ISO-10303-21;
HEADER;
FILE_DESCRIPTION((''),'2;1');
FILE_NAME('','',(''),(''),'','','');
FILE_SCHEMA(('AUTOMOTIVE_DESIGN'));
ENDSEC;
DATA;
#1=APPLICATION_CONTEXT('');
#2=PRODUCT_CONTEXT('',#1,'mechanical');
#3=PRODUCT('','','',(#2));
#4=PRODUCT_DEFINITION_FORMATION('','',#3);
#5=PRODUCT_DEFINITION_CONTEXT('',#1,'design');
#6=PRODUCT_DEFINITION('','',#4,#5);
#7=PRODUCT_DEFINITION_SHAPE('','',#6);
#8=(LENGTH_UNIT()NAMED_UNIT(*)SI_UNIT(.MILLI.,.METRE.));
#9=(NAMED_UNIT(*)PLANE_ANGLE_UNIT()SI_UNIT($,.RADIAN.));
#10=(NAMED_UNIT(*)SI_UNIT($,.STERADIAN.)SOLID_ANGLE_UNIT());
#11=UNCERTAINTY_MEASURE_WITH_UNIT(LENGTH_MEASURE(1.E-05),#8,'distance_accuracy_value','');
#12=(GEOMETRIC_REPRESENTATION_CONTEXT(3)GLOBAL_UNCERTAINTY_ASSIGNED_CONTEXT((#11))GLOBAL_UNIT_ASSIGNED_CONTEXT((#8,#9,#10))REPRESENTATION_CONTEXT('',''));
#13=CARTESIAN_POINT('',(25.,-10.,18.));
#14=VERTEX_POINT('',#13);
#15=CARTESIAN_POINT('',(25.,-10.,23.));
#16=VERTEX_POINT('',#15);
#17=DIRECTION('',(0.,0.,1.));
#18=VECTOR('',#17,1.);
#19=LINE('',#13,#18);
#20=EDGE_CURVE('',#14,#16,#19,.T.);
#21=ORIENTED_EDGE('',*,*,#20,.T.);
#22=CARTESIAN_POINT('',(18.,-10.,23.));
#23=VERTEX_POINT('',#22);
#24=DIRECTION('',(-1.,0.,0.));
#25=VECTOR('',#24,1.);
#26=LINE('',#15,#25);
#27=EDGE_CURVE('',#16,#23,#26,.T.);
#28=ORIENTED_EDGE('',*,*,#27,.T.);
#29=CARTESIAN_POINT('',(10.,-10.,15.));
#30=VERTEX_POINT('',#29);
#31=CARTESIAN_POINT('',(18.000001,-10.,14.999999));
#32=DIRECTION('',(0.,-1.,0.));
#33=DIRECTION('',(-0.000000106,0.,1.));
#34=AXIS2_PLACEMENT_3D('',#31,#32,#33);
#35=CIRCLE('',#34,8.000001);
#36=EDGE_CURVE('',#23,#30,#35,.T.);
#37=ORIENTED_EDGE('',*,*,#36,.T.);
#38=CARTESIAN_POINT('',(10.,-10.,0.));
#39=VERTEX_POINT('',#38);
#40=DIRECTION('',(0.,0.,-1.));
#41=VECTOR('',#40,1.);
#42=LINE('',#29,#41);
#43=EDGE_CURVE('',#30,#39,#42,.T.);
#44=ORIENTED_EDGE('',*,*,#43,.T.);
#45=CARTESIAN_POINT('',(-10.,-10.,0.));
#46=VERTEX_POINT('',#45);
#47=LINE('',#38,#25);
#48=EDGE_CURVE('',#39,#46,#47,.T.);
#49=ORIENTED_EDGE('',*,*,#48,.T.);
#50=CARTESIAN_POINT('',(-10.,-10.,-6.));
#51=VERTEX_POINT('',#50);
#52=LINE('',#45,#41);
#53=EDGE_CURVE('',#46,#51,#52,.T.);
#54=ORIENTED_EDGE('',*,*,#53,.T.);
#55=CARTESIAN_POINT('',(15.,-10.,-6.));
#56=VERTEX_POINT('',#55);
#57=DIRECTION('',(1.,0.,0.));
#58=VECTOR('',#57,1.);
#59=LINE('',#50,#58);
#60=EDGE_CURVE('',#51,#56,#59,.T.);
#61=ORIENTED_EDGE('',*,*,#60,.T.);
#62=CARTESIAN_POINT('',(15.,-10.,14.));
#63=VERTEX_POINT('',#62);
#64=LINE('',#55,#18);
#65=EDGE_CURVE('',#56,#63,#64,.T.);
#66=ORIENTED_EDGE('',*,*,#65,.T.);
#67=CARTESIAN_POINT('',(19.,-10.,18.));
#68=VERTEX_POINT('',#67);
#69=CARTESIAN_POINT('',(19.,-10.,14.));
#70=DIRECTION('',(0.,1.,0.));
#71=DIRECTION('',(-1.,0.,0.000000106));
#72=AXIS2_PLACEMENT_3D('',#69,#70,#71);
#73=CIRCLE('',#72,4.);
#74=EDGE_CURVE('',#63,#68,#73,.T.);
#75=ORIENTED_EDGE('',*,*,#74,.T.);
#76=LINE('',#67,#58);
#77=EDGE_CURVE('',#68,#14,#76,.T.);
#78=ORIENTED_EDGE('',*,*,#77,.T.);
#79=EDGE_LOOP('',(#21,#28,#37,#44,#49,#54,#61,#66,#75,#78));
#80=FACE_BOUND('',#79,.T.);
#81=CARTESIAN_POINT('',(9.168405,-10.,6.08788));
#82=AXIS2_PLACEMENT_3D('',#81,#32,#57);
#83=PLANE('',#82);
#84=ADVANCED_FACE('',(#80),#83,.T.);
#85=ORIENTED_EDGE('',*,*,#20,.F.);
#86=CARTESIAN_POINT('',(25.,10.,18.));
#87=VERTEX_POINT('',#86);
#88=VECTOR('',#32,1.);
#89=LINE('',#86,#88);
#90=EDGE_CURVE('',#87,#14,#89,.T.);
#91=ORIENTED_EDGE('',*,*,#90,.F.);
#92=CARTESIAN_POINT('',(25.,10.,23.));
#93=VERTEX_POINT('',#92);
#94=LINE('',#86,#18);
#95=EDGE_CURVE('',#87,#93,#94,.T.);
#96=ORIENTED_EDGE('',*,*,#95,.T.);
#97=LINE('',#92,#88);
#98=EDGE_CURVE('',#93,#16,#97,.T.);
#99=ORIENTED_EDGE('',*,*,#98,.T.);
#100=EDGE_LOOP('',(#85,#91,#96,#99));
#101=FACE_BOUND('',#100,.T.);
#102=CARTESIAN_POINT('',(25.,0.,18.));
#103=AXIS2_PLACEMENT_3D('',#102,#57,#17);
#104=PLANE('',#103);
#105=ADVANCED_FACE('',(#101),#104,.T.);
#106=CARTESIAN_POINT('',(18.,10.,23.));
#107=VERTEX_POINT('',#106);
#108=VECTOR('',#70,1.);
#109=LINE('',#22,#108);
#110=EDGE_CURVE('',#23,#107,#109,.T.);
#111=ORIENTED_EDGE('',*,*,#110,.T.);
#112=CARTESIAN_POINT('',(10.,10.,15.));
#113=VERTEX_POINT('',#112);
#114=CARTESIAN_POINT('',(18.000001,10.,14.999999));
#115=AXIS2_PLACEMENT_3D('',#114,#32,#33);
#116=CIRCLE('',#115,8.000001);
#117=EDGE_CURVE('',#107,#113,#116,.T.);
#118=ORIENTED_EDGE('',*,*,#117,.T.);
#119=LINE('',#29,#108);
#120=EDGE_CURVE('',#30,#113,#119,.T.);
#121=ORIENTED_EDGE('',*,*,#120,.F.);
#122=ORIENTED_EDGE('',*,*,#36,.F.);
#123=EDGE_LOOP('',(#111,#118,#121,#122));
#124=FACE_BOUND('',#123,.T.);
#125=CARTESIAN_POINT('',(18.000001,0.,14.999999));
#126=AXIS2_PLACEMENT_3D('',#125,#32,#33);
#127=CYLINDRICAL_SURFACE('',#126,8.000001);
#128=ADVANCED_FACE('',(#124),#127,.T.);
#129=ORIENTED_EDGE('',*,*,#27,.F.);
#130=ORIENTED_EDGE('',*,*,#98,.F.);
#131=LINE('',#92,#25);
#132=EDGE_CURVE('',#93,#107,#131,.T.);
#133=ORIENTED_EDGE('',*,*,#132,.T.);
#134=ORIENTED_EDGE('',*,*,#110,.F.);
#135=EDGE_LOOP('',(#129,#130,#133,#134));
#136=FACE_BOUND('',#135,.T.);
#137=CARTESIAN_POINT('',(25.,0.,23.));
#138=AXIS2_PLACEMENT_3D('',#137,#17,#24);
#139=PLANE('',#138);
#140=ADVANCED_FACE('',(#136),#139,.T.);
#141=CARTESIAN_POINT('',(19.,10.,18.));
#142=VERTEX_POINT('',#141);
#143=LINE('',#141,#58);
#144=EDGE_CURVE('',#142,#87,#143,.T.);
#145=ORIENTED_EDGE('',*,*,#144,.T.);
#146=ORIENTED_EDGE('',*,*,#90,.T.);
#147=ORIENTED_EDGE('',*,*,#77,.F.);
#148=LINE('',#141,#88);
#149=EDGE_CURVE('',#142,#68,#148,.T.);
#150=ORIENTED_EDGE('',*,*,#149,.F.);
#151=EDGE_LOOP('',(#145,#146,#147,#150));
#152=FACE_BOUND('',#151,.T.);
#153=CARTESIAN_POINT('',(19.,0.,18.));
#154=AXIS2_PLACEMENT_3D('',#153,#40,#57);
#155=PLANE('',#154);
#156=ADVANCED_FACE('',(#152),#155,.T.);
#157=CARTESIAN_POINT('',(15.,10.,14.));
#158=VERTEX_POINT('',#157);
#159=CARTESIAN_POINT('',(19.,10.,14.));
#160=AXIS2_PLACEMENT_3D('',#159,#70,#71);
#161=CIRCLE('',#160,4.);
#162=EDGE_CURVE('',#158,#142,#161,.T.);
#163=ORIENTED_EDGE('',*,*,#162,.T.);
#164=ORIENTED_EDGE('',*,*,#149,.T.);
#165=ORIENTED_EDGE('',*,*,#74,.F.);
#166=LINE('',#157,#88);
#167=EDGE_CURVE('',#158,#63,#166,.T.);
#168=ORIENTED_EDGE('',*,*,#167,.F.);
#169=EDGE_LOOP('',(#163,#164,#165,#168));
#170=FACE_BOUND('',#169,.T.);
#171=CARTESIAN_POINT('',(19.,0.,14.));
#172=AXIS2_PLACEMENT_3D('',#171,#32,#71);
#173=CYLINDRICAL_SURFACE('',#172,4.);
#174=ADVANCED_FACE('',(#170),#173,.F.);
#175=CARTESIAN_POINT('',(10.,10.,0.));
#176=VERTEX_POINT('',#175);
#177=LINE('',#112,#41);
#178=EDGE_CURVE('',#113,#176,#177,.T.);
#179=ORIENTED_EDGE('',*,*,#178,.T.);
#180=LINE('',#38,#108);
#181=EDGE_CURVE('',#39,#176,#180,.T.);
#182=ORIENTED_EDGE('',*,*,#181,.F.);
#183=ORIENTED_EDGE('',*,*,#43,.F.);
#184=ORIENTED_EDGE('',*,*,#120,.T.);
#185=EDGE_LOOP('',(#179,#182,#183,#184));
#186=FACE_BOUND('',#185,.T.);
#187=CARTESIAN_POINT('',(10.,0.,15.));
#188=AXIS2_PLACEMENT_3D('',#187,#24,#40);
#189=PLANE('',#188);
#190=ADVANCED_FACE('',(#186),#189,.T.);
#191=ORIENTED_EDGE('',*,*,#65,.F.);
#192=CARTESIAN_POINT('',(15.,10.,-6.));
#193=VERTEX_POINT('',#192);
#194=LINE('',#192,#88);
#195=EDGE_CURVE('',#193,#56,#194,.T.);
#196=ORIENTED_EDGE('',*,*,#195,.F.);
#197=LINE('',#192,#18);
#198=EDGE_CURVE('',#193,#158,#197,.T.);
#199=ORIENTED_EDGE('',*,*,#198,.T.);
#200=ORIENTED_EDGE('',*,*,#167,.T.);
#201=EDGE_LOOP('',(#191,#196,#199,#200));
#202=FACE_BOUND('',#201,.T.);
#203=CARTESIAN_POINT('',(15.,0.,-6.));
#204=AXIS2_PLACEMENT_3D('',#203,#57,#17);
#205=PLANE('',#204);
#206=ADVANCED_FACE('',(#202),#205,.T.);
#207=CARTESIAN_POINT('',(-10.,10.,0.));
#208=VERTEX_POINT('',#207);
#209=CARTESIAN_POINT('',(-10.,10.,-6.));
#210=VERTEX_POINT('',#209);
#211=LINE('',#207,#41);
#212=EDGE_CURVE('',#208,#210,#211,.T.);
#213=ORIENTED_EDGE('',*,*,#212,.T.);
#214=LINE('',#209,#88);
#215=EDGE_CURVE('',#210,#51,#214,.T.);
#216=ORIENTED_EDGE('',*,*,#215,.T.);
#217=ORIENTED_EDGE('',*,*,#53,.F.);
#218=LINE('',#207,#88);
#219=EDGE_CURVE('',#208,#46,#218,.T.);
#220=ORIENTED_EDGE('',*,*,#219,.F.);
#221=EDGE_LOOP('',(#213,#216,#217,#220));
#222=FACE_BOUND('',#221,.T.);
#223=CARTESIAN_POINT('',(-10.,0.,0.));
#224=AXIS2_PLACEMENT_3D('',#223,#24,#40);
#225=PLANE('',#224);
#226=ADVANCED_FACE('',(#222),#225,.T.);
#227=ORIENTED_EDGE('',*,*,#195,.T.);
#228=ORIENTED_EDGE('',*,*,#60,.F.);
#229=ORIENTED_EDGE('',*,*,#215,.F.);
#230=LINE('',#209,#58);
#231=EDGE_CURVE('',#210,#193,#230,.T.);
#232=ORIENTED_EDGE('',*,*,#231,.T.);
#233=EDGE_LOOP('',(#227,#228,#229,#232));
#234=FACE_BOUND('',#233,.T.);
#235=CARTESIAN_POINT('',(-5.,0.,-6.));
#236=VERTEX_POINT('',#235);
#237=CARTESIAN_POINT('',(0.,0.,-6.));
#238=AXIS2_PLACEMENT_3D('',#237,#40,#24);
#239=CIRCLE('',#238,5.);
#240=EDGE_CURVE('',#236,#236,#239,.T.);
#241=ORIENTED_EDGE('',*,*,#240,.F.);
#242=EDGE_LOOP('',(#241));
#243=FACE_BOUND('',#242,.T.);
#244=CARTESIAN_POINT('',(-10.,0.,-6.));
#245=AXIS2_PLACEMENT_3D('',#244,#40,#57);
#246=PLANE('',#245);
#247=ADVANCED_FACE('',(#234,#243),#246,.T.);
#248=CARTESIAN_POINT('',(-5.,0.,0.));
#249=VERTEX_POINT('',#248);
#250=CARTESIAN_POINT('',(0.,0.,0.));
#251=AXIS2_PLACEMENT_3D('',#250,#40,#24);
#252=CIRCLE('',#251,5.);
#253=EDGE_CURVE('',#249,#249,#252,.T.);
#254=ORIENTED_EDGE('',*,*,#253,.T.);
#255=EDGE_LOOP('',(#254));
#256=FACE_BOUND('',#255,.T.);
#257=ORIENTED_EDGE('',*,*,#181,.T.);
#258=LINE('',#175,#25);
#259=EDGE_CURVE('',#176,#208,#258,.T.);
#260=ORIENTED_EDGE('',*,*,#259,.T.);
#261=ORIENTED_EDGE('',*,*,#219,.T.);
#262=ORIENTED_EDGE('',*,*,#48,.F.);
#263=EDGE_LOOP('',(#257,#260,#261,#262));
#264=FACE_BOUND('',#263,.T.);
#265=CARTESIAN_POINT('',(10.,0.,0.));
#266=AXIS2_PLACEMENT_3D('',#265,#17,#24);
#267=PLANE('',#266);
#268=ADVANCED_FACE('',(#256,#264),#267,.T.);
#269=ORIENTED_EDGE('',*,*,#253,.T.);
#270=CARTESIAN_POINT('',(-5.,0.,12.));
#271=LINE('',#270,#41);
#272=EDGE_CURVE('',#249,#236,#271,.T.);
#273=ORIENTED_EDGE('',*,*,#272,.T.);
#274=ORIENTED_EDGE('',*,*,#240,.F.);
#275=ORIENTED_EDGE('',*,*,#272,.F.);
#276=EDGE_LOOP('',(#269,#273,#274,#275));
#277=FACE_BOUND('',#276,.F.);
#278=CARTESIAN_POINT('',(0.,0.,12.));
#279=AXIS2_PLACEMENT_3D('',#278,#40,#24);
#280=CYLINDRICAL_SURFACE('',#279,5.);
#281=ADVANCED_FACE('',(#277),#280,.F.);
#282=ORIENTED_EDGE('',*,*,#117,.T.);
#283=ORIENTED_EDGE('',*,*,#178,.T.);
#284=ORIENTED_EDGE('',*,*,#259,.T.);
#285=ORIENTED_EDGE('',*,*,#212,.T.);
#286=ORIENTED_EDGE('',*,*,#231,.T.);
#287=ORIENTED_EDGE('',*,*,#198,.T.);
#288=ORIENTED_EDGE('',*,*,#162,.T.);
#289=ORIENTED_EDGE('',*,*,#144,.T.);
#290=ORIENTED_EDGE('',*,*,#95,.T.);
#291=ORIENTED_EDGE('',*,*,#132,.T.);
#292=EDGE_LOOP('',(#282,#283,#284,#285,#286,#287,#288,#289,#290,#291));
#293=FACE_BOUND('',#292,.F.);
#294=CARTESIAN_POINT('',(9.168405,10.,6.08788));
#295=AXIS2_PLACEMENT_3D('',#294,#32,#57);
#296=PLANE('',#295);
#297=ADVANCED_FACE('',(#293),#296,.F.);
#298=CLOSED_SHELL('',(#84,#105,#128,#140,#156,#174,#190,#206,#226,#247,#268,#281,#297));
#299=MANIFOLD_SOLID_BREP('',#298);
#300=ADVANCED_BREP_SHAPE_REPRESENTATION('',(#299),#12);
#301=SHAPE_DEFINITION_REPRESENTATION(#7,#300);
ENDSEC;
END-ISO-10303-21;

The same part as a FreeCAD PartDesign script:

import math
import FreeCAD as App
import Part
import Sketcher
Q = App.Units.Quantity

doc = App.newDocument("Part")
body = doc.addObject("PartDesign::Body", "Body")

sketch1 = body.newObject("Sketcher::SketchObject", "Sketch")
sketch1.AttachmentSupport = (doc.getObject("XZ_Plane"), [""])
sketch1.MapMode = "FlatFace"
sketch1.addGeometry([
    Part.LineSegment(App.Vector(10, 0, 0), App.Vector(-10, 0, 0)),
    Part.LineSegment(App.Vector(-10, 0, 0), App.Vector(-10, -6, 0)),
    Part.LineSegment(App.Vector(-10, -6, 0), App.Vector(15, -6, 0)),
    Part.LineSegment(App.Vector(15, -6, 0), App.Vector(15, 14, 0)),
    Part.ArcOfCircle(Part.Circle(App.Vector(19, 14, 0), App.Vector(0, 0, 1), 4), math.radians(90), math.radians(180)),
    Part.LineSegment(App.Vector(19, 18, 0), App.Vector(25, 18, 0)),
    Part.LineSegment(App.Vector(25, 18, 0), App.Vector(25, 23, 0)),
    Part.LineSegment(App.Vector(25, 23, 0), App.Vector(18, 23, 0)),
    Part.ArcOfCircle(Part.Circle(App.Vector(18, 15, 0), App.Vector(0, 0, 1), 8), math.radians(90), math.radians(180)),
    Part.LineSegment(App.Vector(10, 15, 0), App.Vector(10, 0, 0)),
], False)
sketch1.addConstraint([
    Sketcher.Constraint("Coincident", 0, 2, 1, 1),
    Sketcher.Constraint("Coincident", 1, 2, 2, 1),
    Sketcher.Constraint("Coincident", 2, 2, 3, 1),
    Sketcher.Constraint("Tangent", 3, 2, 4, 2),
    Sketcher.Constraint("Tangent", 4, 1, 5, 1),
    Sketcher.Constraint("Coincident", 5, 2, 6, 1),
    Sketcher.Constraint("Coincident", 6, 2, 7, 1),
    Sketcher.Constraint("Tangent", 7, 2, 8, 1),
    Sketcher.Constraint("Tangent", 8, 2, 9, 1),
    Sketcher.Constraint("Coincident", 9, 2, 0, 1),
    Sketcher.Constraint("Horizontal", 0),
    Sketcher.Constraint("Vertical", 1),
    Sketcher.Constraint("Horizontal", 2),
    Sketcher.Constraint("Vertical", 3),
    Sketcher.Constraint("Horizontal", 5),
    Sketcher.Constraint("Vertical", 6),
    Sketcher.Constraint("Horizontal", 7),
    Sketcher.Constraint("Vertical", 9),
    Sketcher.Constraint("Symmetric", 0, 2, 9, 2, -1, 1),
    Sketcher.Constraint("Equal", 5, 1),
    Sketcher.Constraint("Equal", 0, 3),
    Sketcher.Constraint("Radius", 4, Q("4 mm")),
    Sketcher.Constraint("Radius", 8, Q("8.000001 mm")),
    Sketcher.Constraint("DistanceX", 0, 2, 0, 1, Q("20 mm")),
    Sketcher.Constraint("DistanceX", 2, 1, 2, 2, Q("25 mm")),
    Sketcher.Constraint("DistanceX", 5, 1, 5, 2, Q("6 mm")),
    Sketcher.Constraint("DistanceY", 6, 1, 6, 2, Q("5 mm")),
])
pad1 = body.newObject("PartDesign::Pad", "Pad")
pad1.Profile = sketch1
pad1.Length = 20
pad1.Midplane = True

sketch2 = body.newObject("Sketcher::SketchObject", "Sketch001")
sketch2.AttachmentSupport = (doc.getObject("XY_Plane"), [""])
sketch2.MapMode = "FlatFace"
sketch2.addGeometry(Part.Circle(App.Vector(0, 0, 0), App.Vector(0, 0, 1), 5), False)
sketch2.addConstraint([
    Sketcher.Constraint("Coincident", 0, 3, -1, 1),
    Sketcher.Constraint("Diameter", 0, Q("10 mm")),
])
doc.recompute()
hole = body.newObject("PartDesign::Hole", "Hole")
hole.Profile = sketch2
hole.ThreadType = "None"
hole.Diameter = 10
hole.DepthType = "Dimension"
hole.Depth = 12
hole.DrillPoint = "Flat"

doc.recompute()
